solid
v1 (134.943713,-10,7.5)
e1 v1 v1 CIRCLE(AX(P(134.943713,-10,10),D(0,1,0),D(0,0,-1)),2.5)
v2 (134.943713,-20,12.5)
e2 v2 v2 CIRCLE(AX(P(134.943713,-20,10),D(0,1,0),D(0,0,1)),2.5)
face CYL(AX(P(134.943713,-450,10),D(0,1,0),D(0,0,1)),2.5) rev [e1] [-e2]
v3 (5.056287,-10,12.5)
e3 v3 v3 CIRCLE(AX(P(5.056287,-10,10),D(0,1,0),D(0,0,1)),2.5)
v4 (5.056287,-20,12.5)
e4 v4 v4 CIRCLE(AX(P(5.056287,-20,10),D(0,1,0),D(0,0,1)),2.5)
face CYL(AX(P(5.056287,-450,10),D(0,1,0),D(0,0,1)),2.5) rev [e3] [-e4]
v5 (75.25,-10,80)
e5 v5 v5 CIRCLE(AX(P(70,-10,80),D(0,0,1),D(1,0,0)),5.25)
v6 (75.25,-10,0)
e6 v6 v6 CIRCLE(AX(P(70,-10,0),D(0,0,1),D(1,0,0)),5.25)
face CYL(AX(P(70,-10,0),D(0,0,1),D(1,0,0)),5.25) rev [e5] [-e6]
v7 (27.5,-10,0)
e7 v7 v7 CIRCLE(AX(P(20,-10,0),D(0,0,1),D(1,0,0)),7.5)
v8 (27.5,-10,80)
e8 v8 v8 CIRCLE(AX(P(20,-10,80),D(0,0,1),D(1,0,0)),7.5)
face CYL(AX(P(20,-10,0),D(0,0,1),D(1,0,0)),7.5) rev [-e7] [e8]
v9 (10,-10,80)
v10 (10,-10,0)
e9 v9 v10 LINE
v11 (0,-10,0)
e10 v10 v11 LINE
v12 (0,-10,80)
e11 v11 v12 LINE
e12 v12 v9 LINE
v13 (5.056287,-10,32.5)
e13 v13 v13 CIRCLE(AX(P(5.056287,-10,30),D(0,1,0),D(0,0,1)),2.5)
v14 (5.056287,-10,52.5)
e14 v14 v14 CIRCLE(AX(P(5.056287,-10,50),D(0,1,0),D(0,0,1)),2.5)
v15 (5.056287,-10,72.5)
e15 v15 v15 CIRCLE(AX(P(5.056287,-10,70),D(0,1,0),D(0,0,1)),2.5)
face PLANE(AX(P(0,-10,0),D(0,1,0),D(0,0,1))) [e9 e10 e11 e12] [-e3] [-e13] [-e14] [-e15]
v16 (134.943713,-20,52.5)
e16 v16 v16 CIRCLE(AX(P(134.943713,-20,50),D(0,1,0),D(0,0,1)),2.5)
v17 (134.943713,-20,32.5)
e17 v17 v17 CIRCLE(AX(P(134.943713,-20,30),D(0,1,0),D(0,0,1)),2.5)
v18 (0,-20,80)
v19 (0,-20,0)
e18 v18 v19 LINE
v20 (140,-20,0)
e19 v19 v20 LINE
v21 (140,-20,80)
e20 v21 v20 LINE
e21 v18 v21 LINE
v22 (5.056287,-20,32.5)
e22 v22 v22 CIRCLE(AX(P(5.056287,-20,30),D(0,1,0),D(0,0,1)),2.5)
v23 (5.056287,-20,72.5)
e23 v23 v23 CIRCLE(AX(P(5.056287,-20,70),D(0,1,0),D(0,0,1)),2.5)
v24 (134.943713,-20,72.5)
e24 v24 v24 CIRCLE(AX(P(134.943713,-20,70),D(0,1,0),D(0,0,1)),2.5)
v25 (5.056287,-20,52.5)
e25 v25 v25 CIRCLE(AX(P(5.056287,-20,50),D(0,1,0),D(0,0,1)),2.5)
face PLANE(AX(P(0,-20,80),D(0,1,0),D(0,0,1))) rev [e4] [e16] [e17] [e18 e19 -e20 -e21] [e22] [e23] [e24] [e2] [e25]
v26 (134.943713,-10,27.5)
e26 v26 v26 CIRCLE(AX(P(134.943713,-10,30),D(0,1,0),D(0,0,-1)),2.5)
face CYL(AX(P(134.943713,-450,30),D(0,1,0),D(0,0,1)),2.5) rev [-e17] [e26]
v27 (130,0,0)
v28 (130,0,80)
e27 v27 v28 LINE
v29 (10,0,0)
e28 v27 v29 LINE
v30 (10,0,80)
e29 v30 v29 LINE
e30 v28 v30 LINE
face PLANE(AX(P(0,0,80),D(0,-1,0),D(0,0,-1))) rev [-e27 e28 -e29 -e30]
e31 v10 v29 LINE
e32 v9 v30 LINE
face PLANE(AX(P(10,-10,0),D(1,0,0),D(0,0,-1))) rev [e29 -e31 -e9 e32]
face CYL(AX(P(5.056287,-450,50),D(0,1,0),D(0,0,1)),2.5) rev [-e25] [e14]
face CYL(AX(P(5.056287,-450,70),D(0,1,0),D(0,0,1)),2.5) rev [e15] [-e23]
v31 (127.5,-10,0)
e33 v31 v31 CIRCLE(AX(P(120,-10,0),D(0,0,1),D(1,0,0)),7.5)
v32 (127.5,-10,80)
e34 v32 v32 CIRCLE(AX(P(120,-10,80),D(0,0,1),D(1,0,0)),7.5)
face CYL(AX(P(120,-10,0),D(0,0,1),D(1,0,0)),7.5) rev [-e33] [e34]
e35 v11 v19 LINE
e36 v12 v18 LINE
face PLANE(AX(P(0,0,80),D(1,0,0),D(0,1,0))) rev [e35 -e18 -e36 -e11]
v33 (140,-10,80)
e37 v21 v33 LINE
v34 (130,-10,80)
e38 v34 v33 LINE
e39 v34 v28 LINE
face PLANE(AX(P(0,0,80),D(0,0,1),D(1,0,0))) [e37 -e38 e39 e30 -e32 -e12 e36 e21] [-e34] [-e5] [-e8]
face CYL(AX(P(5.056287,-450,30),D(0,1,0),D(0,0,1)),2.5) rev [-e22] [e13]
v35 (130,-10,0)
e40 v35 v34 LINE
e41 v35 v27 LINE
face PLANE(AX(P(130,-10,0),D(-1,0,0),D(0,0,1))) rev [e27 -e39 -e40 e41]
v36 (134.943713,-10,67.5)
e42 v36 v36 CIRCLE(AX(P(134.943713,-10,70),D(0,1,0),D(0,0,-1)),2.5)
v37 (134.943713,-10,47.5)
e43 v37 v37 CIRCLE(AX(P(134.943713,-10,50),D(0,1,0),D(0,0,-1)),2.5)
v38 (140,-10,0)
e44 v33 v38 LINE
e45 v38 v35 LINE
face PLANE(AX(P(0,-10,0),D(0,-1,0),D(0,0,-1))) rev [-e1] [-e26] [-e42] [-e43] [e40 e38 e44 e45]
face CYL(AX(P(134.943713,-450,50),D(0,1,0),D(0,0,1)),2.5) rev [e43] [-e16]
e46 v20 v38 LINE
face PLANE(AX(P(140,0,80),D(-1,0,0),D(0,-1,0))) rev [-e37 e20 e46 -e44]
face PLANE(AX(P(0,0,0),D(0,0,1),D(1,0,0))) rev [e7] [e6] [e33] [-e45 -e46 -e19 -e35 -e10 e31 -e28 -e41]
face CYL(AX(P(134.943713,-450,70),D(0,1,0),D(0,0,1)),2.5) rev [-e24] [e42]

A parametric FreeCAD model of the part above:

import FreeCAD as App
import Part
import Sketcher
from FreeCAD import Vector

doc = App.newDocument("Part")
body = doc.addObject("PartDesign::Body", "Body")

sketch1 = body.newObject("Sketcher::SketchObject", "Sketch")
sketch1.AttachmentSupport = (doc.getObject("XY_Plane"), [""])
sketch1.MapMode = "FlatFace"
sketch1.addGeometry([
    Part.LineSegment(Vector(0, 0, 0), Vector(0, -20, 0)),
    Part.LineSegment(Vector(0, -20, 0), Vector(140, -20, 0)),
    Part.LineSegment(Vector(140, -20, 0), Vector(140, 0, 0)),
    Part.LineSegment(Vector(140, 0, 0), Vector(0, 0, 0)),
], False)
sketch1.addConstraint([
    Sketcher.Constraint("Coincident", 0, 2, 1, 1),
    Sketcher.Constraint("Coincident", 1, 2, 2, 1),
    Sketcher.Constraint("Coincident", 2, 2, 3, 1),
    Sketcher.Constraint("Coincident", 3, 2, 0, 1),
    Sketcher.Constraint("Vertical", 0),
    Sketcher.Constraint("Horizontal", 1),
    Sketcher.Constraint("Vertical", 2),
    Sketcher.Constraint("Horizontal", 3),
    Sketcher.Constraint("Coincident", 3, 2, -1, 1),
    Sketcher.Constraint("DistanceX", 1, 1, 1, 2, 140.0),
    Sketcher.Constraint("DistanceY", 0, 2, 0, 1, 20.0),
])
pad1 = body.newObject("PartDesign::Pad", "Pad")
pad1.Profile = sketch1
pad1.Length = 80

sketch2 = body.newObject("Sketcher::SketchObject", "Sketch001")
sketch2.AttachmentSupport = (doc.getObject("XZ_Plane"), [""])
sketch2.MapMode = "FlatFace"
sketch2.addGeometry([
    Part.LineSegment(Vector(130, 0, 0), Vector(130, 80, 0)),
    Part.LineSegment(Vector(130, 80, 0), Vector(140, 80, 0)),
    Part.LineSegment(Vector(140, 80, 0), Vector(140, 0, 0)),
    Part.LineSegment(Vector(140, 0, 0), Vector(130, 0, 0)),
    Part.LineSegment(Vector(0, 0, 0), Vector(0, 80, 0)),
    Part.LineSegment(Vector(0, 80, 0), Vector(10, 80, 0)),
    Part.LineSegment(Vector(10, 80, 0), Vector(10, 0, 0)),
    Part.LineSegment(Vector(10, 0, 0), Vector(0, 0, 0)),
], False)
sketch2.addConstraint([
    Sketcher.Constraint("Coincident", 0, 2, 1, 1),
    Sketcher.Constraint("Coincident", 1, 2, 2, 1),
    Sketcher.Constraint("Coincident", 2, 2, 3, 1),
    Sketcher.Constraint("Coincident", 3, 2, 0, 1),
    Sketcher.Constraint("Coincident", 4, 2, 5, 1),
    Sketcher.Constraint("Coincident", 5, 2, 6, 1),
    Sketcher.Constraint("Coincident", 6, 2, 7, 1),
    Sketcher.Constraint("Coincident", 7, 2, 4, 1),
    Sketcher.Constraint("Vertical", 0),
    Sketcher.Constraint("Horizontal", 1),
    Sketcher.Constraint("Vertical", 2),
    Sketcher.Constraint("Horizontal", 3),
    Sketcher.Constraint("Vertical", 4),
    Sketcher.Constraint("Horizontal", 5),
    Sketcher.Constraint("Vertical", 6),
    Sketcher.Constraint("Horizontal", 7),
    Sketcher.Constraint("Coincident", 7, 2, -1, 1),
    Sketcher.Constraint("PointOnObject", 2, 2, -1),
    Sketcher.Constraint("Horizontal", 1, 2, 4, 2),
    Sketcher.Constraint("Equal", 3, 5),
    Sketcher.Constraint("DistanceX", 1, 1, 1, 2, 10.0),
    Sketcher.Constraint("DistanceY", 0, 1, 0, 2, 80.0),
    Sketcher.Constraint("DistanceX", -1, 1, 0, 2, 130.0),
])
pocket1 = body.newObject("PartDesign::Pocket", "Pocket")
pocket1.Profile = sketch2
pocket1.Length = 10
pocket1.Reversed = True

sketch3 = body.newObject("Sketcher::SketchObject", "Sketch002")
sketch3.AttachmentSupport = (doc.getObject("XY_Plane"), [""])
sketch3.MapMode = "FlatFace"
sketch3.AttachmentOffset = App.Placement(Vector(0, 0, 80), App.Rotation())
sketch3.addGeometry([
    Part.Circle(Vector(20, -10, 0), Vector(0, 0, 1), 8),
    Part.Circle(Vector(70, -10, 0), Vector(0, 0, 1), 5),
    Part.Circle(Vector(120, -10, 0), Vector(0, 0, 1), 8),
], False)
sketch3.addConstraint([
    Sketcher.Constraint("Equal", 0, 2),
    Sketcher.Constraint("Horizontal", 0, 3, 1, 3),
    Sketcher.Constraint("Horizontal", 1, 3, 2, 3),
    Sketcher.Constraint("Diameter", 0, 15.0),
    Sketcher.Constraint("Diameter", 1, 10.5),
    Sketcher.Constraint("DistanceX", -1, 1, 0, 3, 20.0),
    Sketcher.Constraint("DistanceY", 0, 3, -1, 1, 10.0),
    Sketcher.Constraint("DistanceX", -1, 1, 1, 3, 70.0),
    Sketcher.Constraint("DistanceX", -1, 1, 2, 3, 120.0),
])
pocket2 = body.newObject("PartDesign::Pocket", "Pocket001")
pocket2.Profile = sketch3
pocket2.Length = 80

sketch4 = body.newObject("Sketcher::SketchObject", "Sketch003")
sketch4.AttachmentSupport = (doc.getObject("XZ_Plane"), [""])
sketch4.MapMode = "FlatFace"
sketch4.AttachmentOffset = App.Placement(Vector(0, 0, 10), App.Rotation())
sketch4.addGeometry([
    Part.Circle(Vector(5.1, 10, 0), Vector(0, 0, 1), 2.5),
    Part.Circle(Vector(5.1, 30, 0), Vector(0, 0, 1), 2.5),
    Part.Circle(Vector(5.1, 50, 0), Vector(0, 0, 1), 2.5),
    Part.Circle(Vector(5.1, 70, 0), Vector(0, 0, 1), 2.5),
    Part.Circle(Vector(134.9, 70, 0), Vector(0, 0, 1), 2.5),
    Part.Circle(Vector(134.9, 50, 0), Vector(0, 0, 1), 2.5),
    Part.Circle(Vector(134.9, 30, 0), Vector(0, 0, 1), 2.5),
    Part.Circle(Vector(134.9, 10, 0), Vector(0, 0, 1), 2.5),
], False)
sketch4.addConstraint([
    Sketcher.Constraint("Equal", 0, 1),
    Sketcher.Constraint("Equal", 1, 2),
    Sketcher.Constraint("Equal", 2, 3),
    Sketcher.Constraint("Equal", 3, 4),
    Sketcher.Constraint("Equal", 4, 5),
    Sketcher.Constraint("Equal", 5, 6),
    Sketcher.Constraint("Equal", 6, 7),
    Sketcher.Constraint("Horizontal", 3, 3, 4, 3),
    Sketcher.Constraint("Horizontal", 2, 3, 5, 3),
    Sketcher.Constraint("Horizontal", 1, 3, 6, 3),
    Sketcher.Constraint("Horizontal", 0, 3, 7, 3),
    Sketcher.Constraint("Vertical", 0, 3, 1, 3),
    Sketcher.Constraint("Vertical", 1, 3, 2, 3),
    Sketcher.Constraint("Vertical", 2, 3, 3, 3),
    Sketcher.Constraint("Vertical", 4, 3, 5, 3),
    Sketcher.Constraint("Vertical", 5, 3, 6, 3),
    Sketcher.Constraint("Vertical", 6, 3, 7, 3),
    Sketcher.Constraint("Diameter", 0, 5.0),
    Sketcher.Constraint("DistanceY", -1, 1, 0, 3, 10.0),
    Sketcher.Constraint("DistanceY", -1, 1, 1, 3, 30.0),
    Sketcher.Constraint("DistanceY", -1, 1, 2, 3, 50.0),
    Sketcher.Constraint("DistanceY", -1, 1, 3, 3, 70.0),
    Sketcher.Constraint("DistanceX", -1, 1, 0, 3, 5.056287),
    Sketcher.Constraint("DistanceX", -1, 1, 4, 3, 134.943713),
])
pocket3 = body.newObject("PartDesign::Pocket", "Pocket002")
pocket3.Profile = sketch4
pocket3.Length = 440
pocket3.Reversed = True

doc.recompute()
